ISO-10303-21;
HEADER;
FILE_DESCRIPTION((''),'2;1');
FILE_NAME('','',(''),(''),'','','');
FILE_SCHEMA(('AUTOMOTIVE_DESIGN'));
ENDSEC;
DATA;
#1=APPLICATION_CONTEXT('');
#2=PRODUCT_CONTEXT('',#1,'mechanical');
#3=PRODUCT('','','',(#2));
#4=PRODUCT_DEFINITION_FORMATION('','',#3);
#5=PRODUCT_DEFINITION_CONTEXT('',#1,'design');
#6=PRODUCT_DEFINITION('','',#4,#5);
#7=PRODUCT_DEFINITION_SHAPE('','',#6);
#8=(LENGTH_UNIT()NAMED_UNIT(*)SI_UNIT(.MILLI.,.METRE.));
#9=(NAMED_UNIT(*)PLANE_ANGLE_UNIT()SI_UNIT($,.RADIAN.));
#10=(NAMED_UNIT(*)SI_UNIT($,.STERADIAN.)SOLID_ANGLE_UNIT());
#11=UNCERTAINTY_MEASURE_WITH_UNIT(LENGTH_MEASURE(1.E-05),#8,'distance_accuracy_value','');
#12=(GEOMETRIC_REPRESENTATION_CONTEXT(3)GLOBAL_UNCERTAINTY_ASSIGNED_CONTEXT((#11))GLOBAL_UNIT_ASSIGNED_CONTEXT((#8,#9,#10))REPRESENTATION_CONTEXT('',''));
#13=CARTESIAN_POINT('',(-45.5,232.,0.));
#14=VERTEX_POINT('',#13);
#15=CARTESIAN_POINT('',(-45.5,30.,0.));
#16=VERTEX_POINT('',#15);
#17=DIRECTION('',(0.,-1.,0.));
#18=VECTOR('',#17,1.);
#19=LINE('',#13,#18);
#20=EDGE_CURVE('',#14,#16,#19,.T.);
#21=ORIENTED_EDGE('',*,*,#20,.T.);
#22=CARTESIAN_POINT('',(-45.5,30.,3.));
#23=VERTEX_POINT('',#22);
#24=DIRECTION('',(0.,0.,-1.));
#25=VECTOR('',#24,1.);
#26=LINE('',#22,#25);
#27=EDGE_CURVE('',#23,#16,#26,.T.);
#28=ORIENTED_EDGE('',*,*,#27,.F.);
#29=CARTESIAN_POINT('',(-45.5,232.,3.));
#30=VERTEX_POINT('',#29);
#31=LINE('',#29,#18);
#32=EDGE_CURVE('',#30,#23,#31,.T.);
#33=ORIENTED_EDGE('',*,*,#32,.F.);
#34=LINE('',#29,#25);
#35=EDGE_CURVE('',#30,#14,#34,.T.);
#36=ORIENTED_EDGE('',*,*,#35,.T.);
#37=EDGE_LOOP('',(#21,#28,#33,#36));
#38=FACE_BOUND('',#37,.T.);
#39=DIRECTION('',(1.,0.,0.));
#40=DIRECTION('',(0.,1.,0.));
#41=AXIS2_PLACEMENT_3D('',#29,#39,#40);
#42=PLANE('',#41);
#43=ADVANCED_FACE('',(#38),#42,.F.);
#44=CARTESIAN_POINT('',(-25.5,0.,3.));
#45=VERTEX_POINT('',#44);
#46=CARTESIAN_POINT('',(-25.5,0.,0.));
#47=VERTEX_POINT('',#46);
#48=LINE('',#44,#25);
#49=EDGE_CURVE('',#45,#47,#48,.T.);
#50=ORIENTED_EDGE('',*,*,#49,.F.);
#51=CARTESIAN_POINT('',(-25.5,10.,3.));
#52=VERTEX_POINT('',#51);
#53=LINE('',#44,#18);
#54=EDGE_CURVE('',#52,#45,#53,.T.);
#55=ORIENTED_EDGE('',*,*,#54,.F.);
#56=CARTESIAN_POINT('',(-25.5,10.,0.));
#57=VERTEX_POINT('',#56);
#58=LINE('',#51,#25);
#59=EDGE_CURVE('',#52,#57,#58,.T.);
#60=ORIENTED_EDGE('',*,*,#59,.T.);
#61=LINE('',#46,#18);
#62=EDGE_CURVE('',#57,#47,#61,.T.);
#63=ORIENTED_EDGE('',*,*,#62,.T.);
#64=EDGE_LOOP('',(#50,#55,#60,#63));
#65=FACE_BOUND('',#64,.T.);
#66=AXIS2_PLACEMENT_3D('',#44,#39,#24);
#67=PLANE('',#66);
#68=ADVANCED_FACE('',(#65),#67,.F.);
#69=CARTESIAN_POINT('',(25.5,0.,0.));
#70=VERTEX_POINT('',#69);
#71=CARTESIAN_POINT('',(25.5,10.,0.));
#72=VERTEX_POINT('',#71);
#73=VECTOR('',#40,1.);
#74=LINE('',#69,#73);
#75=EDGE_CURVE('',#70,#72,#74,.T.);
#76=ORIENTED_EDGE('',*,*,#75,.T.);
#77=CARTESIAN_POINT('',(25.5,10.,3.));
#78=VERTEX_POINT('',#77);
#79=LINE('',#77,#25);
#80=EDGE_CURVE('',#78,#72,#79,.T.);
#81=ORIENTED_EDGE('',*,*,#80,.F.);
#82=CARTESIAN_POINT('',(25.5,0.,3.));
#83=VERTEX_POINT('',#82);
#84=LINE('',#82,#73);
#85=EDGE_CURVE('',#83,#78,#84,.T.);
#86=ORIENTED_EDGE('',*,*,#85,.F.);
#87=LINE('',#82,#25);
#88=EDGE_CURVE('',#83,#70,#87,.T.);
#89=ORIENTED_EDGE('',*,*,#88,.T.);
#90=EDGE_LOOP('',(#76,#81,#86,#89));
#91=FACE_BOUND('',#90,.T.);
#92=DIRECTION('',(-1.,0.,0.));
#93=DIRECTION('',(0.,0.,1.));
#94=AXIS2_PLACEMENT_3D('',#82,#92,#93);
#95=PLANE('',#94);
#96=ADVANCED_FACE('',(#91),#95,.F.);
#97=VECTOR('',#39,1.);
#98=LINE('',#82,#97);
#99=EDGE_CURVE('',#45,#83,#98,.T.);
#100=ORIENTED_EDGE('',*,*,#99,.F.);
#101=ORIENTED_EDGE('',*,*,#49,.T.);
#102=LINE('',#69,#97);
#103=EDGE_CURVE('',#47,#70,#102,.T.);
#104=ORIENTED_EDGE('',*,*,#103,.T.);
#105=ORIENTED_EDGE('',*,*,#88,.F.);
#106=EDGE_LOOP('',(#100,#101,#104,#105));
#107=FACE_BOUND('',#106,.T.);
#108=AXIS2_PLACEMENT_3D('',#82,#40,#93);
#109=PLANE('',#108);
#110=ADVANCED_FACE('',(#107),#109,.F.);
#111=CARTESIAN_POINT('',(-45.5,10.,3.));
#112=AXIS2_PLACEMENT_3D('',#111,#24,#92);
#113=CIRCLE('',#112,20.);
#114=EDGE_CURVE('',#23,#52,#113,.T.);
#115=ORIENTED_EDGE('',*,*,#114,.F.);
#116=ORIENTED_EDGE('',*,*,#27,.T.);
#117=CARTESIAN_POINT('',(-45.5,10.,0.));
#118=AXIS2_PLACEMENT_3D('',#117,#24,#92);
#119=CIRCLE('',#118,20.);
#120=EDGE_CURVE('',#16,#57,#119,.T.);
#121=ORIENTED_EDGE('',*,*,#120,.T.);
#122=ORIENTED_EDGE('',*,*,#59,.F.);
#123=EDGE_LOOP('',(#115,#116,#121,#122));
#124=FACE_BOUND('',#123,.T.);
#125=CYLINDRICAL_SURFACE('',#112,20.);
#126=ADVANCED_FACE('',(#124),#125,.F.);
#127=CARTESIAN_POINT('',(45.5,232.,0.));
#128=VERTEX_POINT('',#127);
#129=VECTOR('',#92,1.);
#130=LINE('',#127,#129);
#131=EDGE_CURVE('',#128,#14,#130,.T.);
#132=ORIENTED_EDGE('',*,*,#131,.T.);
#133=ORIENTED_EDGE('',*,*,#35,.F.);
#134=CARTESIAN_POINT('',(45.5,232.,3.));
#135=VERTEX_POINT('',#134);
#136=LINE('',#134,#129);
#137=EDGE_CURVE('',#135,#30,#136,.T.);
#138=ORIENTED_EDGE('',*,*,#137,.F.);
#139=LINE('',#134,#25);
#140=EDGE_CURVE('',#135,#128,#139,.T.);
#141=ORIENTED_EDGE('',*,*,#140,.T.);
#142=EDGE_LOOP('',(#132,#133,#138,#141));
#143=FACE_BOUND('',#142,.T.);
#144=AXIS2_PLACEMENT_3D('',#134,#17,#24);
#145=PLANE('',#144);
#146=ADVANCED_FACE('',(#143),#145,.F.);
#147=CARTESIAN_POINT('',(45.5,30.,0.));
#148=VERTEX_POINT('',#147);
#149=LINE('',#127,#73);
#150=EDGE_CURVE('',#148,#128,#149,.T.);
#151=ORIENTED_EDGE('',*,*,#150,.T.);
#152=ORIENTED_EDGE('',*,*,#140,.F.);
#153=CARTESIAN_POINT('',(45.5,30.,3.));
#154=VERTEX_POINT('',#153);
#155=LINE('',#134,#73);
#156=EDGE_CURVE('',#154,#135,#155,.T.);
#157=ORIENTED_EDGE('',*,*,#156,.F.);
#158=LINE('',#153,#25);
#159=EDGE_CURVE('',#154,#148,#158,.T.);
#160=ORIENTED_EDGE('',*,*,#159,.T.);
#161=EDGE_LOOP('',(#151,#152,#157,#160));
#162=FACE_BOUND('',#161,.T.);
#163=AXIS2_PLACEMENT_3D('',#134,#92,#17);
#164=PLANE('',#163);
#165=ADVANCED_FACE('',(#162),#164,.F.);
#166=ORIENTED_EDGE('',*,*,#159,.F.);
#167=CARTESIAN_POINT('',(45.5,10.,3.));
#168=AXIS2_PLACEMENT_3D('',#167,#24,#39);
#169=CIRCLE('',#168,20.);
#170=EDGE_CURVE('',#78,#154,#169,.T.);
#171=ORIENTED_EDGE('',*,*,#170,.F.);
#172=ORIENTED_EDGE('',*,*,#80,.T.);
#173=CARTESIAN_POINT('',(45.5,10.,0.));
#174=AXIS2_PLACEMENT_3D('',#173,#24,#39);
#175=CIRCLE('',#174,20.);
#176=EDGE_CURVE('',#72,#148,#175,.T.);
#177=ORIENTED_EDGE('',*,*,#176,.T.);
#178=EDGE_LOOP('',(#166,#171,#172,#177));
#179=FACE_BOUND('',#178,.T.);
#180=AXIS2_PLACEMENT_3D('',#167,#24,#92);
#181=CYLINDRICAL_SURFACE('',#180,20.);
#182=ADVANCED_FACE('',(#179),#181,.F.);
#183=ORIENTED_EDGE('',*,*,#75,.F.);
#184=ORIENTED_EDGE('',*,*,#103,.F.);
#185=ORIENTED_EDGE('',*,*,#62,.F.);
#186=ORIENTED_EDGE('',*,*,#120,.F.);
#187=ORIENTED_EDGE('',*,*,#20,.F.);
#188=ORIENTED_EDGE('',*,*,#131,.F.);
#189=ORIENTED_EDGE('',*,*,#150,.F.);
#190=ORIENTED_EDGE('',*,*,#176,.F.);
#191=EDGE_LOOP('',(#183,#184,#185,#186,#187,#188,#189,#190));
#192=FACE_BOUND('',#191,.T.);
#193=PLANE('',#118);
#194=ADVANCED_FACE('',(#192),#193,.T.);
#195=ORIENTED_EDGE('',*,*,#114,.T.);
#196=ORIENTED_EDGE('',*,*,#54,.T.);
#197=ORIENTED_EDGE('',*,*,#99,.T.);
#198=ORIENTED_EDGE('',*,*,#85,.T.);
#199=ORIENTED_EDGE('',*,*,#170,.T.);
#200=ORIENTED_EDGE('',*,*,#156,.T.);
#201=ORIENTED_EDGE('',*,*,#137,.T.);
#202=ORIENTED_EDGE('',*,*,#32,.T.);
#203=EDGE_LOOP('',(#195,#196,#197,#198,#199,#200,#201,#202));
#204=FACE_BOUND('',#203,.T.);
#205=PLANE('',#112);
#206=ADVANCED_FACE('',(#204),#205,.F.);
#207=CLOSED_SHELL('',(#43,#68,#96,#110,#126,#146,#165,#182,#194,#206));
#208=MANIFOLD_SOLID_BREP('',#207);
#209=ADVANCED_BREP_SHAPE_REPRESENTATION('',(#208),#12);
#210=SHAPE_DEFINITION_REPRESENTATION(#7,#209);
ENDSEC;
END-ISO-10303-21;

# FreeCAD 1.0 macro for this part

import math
import FreeCAD as App
import Part
import Sketcher

doc = App.newDocument("Part")
body = doc.addObject("PartDesign::Body", "Body")

sketch1 = body.newObject("Sketcher::SketchObject", "Sketch")
sketch1.AttachmentSupport = (doc.getObject("XY_Plane"), [""])
sketch1.MapMode = "FlatFace"
sketch1.addGeometry([
    Part.LineSegment(App.Vector(46, 232, 0), App.Vector(-46, 232, 0)),
    Part.LineSegment(App.Vector(-46, 232, 0), App.Vector(-46, 30, 0)),
    Part.ArcOfCircle(Part.Circle(App.Vector(-45, 10, 0), App.Vector(0, 0, 1), 20), math.radians(0), math.radians(90)),
    Part.LineSegment(App.Vector(-26, 10, 0), App.Vector(-26, 0, 0)),
    Part.LineSegment(App.Vector(-26, 0, 0), App.Vector(26, 0, 0)),
    Part.LineSegment(App.Vector(26, 0, 0), App.Vector(26, 10, 0)),
    Part.ArcOfCircle(Part.Circle(App.Vector(45, 10, 0), App.Vector(0, 0, 1), 20), math.radians(90), math.radians(180)),
    Part.LineSegment(App.Vector(46, 30, 0), App.Vector(46, 232, 0)),
], False)
sketch1.addConstraint([
    Sketcher.Constraint("Coincident", 0, 2, 1, 1),
    Sketcher.Constraint("Coincident", 1, 2, 2, 2),
    Sketcher.Constraint("Tangent", 2, 1, 3, 1),
    Sketcher.Constraint("Coincident", 3, 2, 4, 1),
    Sketcher.Constraint("Coincident", 4, 2, 5, 1),
    Sketcher.Constraint("Tangent", 5, 2, 6, 2),
    Sketcher.Constraint("Coincident", 6, 1, 7, 1),
    Sketcher.Constraint("Coincident", 7, 2, 0, 1),
    Sketcher.Constraint("Horizontal", 0),
    Sketcher.Constraint("Vertical", 1),
    Sketcher.Constraint("Vertical", 3),
    Sketcher.Constraint("Horizontal", 4),
    Sketcher.Constraint("Vertical", 5),
    Sketcher.Constraint("Vertical", 7),
    Sketcher.Constraint("Equal", 2, 6),
    Sketcher.Constraint("Symmetric", 3, 2, 4, 2, -1, 1),
    Sketcher.Constraint("Symmetric", 1, 2, 6, 1, -2),
    Sketcher.Constraint("Vertical", 2, 3, 0, 2),
    Sketcher.Constraint("Radius", 2, 20.0),
    Sketcher.Constraint("DistanceX", 0, 2, 0, 1, 91.0),
    Sketcher.Constraint("DistanceY", 1, 2, 1, 1, 202.0),
    Sketcher.Constraint("DistanceY", 3, 2, 3, 1, 10.0),
])
pad1 = body.newObject("PartDesign::Pad", "Pad")
pad1.Profile = sketch1
pad1.Length = 3

doc.recompute()
